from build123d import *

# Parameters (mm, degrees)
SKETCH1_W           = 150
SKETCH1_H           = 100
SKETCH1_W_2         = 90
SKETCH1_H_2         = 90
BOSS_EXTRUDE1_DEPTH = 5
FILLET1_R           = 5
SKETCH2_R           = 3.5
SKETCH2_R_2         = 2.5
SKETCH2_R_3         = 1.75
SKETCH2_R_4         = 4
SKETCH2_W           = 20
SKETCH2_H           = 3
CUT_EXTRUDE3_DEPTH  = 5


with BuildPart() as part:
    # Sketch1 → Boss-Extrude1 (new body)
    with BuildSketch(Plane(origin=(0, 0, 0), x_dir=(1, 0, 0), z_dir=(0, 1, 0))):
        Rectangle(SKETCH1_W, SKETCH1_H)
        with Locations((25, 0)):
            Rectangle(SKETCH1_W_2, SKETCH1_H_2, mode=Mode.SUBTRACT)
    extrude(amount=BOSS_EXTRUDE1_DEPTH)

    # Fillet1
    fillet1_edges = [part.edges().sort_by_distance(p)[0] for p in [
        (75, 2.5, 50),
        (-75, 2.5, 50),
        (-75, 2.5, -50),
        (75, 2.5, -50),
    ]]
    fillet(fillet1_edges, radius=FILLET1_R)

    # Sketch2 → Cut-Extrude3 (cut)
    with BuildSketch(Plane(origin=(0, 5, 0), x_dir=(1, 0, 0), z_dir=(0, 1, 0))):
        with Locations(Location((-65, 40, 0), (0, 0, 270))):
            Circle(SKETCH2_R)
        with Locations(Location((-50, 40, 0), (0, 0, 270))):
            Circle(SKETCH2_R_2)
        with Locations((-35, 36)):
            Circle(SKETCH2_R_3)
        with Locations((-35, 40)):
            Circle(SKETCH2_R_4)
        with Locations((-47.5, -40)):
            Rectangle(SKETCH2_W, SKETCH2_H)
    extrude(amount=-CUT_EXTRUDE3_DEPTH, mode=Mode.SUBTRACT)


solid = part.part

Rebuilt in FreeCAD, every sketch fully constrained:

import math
import FreeCAD as App
import Part
import Sketcher
from FreeCAD import Vector
Q = App.Units.Quantity


def edges_at(feature, points):
    """Names of the edges that pass closest to the given points."""
    edges = feature.Shape.Edges
    near = lambda p: min(range(len(edges)), key=lambda i: edges[i].distToShape(Part.Vertex(*p))[0])
    return sorted({f"Edge{near(p) + 1}" for p in points})

doc = App.newDocument("Part")
body = doc.addObject("PartDesign::Body", "Body")

# Sketch on XZ plane
sketch1 = doc.addObject("Sketcher::SketchObject", "Sketch")
body.addObject(sketch1)
sketch1.AttachmentSupport = (doc.XZ_Plane, [""])
sketch1.MapMode = "FlatFace"
sketch1.addGeometry([
    Part.LineSegment(Vector(-75, -50, 0), Vector(-75, 50, 0)),  # 0
    Part.LineSegment(Vector(-75, 50, 0), Vector(75, 50, 0)),  # 1
    Part.LineSegment(Vector(75, 50, 0), Vector(75, -50, 0)),  # 2
    Part.LineSegment(Vector(75, -50, 0), Vector(-75, -50, 0)),  # 3
    Part.LineSegment(Vector(70, 45, 0), Vector(-20, 45, 0)),  # 4
    Part.LineSegment(Vector(-20, 45, 0), Vector(-20, -45, 0)),  # 5
    Part.LineSegment(Vector(-20, -45, 0), Vector(70, -45, 0)),  # 6
    Part.LineSegment(Vector(70, -45, 0), Vector(70, 45, 0)),  # 7
], False)
sketch1.addConstraint([
    Sketcher.Constraint("Coincident", 0, 2, 1, 1),
    Sketcher.Constraint("Coincident", 1, 2, 2, 1),
    Sketcher.Constraint("Coincident", 2, 2, 3, 1),
    Sketcher.Constraint("Coincident", 3, 2, 0, 1),
    Sketcher.Constraint("Coincident", 4, 2, 5, 1),
    Sketcher.Constraint("Coincident", 5, 2, 6, 1),
    Sketcher.Constraint("Coincident", 6, 2, 7, 1),
    Sketcher.Constraint("Coincident", 7, 2, 4, 1),
    Sketcher.Constraint("Vertical", 0),
    Sketcher.Constraint("Horizontal", 1),
    Sketcher.Constraint("Vertical", 2),
    Sketcher.Constraint("Horizontal", 3),
    Sketcher.Constraint("Horizontal", 4),
    Sketcher.Constraint("Vertical", 5),
    Sketcher.Constraint("Horizontal", 6),
    Sketcher.Constraint("Vertical", 7),
    Sketcher.Constraint("Symmetric", 0, 2, 2, 2, -1, 1),
    Sketcher.Constraint("Equal", 6, 5),
    Sketcher.Constraint("DistanceX", 1, 1, 1, 2, Q("150 mm")),
    Sketcher.Constraint("DistanceX", 4, 2, 4, 1, Q("90 mm")),
    Sketcher.Constraint("DistanceY", 0, 1, 0, 2, Q("100 mm")),
    Sketcher.Constraint("DistanceX", 4, 2, -1, 1, Q("20 mm")),
    Sketcher.Constraint("DistanceY", -1, 1, 4, 2, Q("45 mm")),
])
pad1 = doc.addObject("PartDesign::Pad", "Pad")
body.addObject(pad1)
pad1.Profile = sketch1
pad1.Length = 5
pad1.Reversed = True
doc.recompute()

fillet = doc.addObject("PartDesign::Fillet", "Fillet")
body.addObject(fillet)
fillet.Base = (pad1, edges_at(pad1, [
    (75, 2.5, 50),
    (-75, 2.5, 50),
    (-75, 2.5, -50),
    (75, 2.5, -50),
]))
fillet.Radius = 5

# Sketch on XZ plane
sketch2 = doc.addObject("Sketcher::SketchObject", "Sketch001")
body.addObject(sketch2)
sketch2.AttachmentSupport = (doc.XZ_Plane, [""])
sketch2.MapMode = "FlatFace"
sketch2.AttachmentOffset = App.Placement(Vector(0, 0, -5), App.Rotation())
sketch2.addGeometry([
    Part.Circle(Vector(-65, -40, 0), Vector(0, 0, 1), 3.5),  # 0
    Part.Circle(Vector(-50, -40, 0), Vector(0, 0, 1), 2.5),  # 1
    Part.ArcOfCircle(Part.Circle(Vector(-35, -40, 0), Vector(0, 0, 1), 4), math.radians(115), math.radians(425)),  # 2
    Part.ArcOfCircle(Part.Circle(Vector(-35, -36, 0), Vector(0, 0, 1), 1.8), math.radians(-13), math.radians(193)),  # 3
    Part.LineSegment(Vector(-57.5, 38.5, 0), Vector(-57.5, 41.5, 0)),  # 4
    Part.LineSegment(Vector(-57.5, 41.5, 0), Vector(-37.5, 41.5, 0)),  # 5
    Part.LineSegment(Vector(-37.5, 41.5, 0), Vector(-37.5, 38.5, 0)),  # 6
    Part.LineSegment(Vector(-37.5, 38.5, 0), Vector(-57.5, 38.5, 0)),  # 7
], False)
sketch2.addConstraint([
    Sketcher.Constraint("Coincident", 2, 1, 3, 2),
    Sketcher.Constraint("Coincident", 3, 1, 2, 2),
    Sketcher.Constraint("Coincident", 4, 2, 5, 1),
    Sketcher.Constraint("Coincident", 5, 2, 6, 1),
    Sketcher.Constraint("Coincident", 6, 2, 7, 1),
    Sketcher.Constraint("Coincident", 7, 2, 4, 1),
    Sketcher.Constraint("Vertical", 4),
    Sketcher.Constraint("Horizontal", 5),
    Sketcher.Constraint("Vertical", 6),
    Sketcher.Constraint("Horizontal", 7),
    Sketcher.Constraint("Horizontal", 0, 3, 1, 3),
    Sketcher.Constraint("Horizontal", 1, 3, 2, 3),
    Sketcher.Constraint("Horizontal", 2, 1, 3, 1),
    Sketcher.Constraint("Diameter", 0, Q("7 mm")),
    Sketcher.Constraint("Diameter", 1, Q("5 mm")),
    Sketcher.Constraint("Radius", 2, Q("4 mm")),
    Sketcher.Constraint("DistanceX", 5, 1, 5, 2, Q("20 mm")),
    Sketcher.Constraint("DistanceY", 4, 1, 4, 2, Q("3 mm")),
    Sketcher.Constraint("Radius", 3, Q("1.75 mm")),
    Sketcher.Constraint("DistanceX", 0, 3, -1, 1, Q("65 mm")),
    Sketcher.Constraint("DistanceY", 0, 3, -1, 1, Q("40 mm")),
    Sketcher.Constraint("DistanceX", 1, 3, -1, 1, Q("50 mm")),
    Sketcher.Constraint("DistanceX", 2, 3, -1, 1, Q("35 mm")),
    Sketcher.Constraint("DistanceY", 3, 3, -1, 1, Q("36 mm")),
    Sketcher.Constraint("DistanceX", 4, 2, -1, 1, Q("57.5 mm")),
    Sketcher.Constraint("DistanceY", -1, 1, 4, 2, Q("41.5 mm")),
])
pocket1 = doc.addObject("PartDesign::Pocket", "Pocket")
body.addObject(pocket1)
pocket1.Profile = sketch2
pocket1.Length = 5
pocket1.Reversed = True

doc.recompute()
